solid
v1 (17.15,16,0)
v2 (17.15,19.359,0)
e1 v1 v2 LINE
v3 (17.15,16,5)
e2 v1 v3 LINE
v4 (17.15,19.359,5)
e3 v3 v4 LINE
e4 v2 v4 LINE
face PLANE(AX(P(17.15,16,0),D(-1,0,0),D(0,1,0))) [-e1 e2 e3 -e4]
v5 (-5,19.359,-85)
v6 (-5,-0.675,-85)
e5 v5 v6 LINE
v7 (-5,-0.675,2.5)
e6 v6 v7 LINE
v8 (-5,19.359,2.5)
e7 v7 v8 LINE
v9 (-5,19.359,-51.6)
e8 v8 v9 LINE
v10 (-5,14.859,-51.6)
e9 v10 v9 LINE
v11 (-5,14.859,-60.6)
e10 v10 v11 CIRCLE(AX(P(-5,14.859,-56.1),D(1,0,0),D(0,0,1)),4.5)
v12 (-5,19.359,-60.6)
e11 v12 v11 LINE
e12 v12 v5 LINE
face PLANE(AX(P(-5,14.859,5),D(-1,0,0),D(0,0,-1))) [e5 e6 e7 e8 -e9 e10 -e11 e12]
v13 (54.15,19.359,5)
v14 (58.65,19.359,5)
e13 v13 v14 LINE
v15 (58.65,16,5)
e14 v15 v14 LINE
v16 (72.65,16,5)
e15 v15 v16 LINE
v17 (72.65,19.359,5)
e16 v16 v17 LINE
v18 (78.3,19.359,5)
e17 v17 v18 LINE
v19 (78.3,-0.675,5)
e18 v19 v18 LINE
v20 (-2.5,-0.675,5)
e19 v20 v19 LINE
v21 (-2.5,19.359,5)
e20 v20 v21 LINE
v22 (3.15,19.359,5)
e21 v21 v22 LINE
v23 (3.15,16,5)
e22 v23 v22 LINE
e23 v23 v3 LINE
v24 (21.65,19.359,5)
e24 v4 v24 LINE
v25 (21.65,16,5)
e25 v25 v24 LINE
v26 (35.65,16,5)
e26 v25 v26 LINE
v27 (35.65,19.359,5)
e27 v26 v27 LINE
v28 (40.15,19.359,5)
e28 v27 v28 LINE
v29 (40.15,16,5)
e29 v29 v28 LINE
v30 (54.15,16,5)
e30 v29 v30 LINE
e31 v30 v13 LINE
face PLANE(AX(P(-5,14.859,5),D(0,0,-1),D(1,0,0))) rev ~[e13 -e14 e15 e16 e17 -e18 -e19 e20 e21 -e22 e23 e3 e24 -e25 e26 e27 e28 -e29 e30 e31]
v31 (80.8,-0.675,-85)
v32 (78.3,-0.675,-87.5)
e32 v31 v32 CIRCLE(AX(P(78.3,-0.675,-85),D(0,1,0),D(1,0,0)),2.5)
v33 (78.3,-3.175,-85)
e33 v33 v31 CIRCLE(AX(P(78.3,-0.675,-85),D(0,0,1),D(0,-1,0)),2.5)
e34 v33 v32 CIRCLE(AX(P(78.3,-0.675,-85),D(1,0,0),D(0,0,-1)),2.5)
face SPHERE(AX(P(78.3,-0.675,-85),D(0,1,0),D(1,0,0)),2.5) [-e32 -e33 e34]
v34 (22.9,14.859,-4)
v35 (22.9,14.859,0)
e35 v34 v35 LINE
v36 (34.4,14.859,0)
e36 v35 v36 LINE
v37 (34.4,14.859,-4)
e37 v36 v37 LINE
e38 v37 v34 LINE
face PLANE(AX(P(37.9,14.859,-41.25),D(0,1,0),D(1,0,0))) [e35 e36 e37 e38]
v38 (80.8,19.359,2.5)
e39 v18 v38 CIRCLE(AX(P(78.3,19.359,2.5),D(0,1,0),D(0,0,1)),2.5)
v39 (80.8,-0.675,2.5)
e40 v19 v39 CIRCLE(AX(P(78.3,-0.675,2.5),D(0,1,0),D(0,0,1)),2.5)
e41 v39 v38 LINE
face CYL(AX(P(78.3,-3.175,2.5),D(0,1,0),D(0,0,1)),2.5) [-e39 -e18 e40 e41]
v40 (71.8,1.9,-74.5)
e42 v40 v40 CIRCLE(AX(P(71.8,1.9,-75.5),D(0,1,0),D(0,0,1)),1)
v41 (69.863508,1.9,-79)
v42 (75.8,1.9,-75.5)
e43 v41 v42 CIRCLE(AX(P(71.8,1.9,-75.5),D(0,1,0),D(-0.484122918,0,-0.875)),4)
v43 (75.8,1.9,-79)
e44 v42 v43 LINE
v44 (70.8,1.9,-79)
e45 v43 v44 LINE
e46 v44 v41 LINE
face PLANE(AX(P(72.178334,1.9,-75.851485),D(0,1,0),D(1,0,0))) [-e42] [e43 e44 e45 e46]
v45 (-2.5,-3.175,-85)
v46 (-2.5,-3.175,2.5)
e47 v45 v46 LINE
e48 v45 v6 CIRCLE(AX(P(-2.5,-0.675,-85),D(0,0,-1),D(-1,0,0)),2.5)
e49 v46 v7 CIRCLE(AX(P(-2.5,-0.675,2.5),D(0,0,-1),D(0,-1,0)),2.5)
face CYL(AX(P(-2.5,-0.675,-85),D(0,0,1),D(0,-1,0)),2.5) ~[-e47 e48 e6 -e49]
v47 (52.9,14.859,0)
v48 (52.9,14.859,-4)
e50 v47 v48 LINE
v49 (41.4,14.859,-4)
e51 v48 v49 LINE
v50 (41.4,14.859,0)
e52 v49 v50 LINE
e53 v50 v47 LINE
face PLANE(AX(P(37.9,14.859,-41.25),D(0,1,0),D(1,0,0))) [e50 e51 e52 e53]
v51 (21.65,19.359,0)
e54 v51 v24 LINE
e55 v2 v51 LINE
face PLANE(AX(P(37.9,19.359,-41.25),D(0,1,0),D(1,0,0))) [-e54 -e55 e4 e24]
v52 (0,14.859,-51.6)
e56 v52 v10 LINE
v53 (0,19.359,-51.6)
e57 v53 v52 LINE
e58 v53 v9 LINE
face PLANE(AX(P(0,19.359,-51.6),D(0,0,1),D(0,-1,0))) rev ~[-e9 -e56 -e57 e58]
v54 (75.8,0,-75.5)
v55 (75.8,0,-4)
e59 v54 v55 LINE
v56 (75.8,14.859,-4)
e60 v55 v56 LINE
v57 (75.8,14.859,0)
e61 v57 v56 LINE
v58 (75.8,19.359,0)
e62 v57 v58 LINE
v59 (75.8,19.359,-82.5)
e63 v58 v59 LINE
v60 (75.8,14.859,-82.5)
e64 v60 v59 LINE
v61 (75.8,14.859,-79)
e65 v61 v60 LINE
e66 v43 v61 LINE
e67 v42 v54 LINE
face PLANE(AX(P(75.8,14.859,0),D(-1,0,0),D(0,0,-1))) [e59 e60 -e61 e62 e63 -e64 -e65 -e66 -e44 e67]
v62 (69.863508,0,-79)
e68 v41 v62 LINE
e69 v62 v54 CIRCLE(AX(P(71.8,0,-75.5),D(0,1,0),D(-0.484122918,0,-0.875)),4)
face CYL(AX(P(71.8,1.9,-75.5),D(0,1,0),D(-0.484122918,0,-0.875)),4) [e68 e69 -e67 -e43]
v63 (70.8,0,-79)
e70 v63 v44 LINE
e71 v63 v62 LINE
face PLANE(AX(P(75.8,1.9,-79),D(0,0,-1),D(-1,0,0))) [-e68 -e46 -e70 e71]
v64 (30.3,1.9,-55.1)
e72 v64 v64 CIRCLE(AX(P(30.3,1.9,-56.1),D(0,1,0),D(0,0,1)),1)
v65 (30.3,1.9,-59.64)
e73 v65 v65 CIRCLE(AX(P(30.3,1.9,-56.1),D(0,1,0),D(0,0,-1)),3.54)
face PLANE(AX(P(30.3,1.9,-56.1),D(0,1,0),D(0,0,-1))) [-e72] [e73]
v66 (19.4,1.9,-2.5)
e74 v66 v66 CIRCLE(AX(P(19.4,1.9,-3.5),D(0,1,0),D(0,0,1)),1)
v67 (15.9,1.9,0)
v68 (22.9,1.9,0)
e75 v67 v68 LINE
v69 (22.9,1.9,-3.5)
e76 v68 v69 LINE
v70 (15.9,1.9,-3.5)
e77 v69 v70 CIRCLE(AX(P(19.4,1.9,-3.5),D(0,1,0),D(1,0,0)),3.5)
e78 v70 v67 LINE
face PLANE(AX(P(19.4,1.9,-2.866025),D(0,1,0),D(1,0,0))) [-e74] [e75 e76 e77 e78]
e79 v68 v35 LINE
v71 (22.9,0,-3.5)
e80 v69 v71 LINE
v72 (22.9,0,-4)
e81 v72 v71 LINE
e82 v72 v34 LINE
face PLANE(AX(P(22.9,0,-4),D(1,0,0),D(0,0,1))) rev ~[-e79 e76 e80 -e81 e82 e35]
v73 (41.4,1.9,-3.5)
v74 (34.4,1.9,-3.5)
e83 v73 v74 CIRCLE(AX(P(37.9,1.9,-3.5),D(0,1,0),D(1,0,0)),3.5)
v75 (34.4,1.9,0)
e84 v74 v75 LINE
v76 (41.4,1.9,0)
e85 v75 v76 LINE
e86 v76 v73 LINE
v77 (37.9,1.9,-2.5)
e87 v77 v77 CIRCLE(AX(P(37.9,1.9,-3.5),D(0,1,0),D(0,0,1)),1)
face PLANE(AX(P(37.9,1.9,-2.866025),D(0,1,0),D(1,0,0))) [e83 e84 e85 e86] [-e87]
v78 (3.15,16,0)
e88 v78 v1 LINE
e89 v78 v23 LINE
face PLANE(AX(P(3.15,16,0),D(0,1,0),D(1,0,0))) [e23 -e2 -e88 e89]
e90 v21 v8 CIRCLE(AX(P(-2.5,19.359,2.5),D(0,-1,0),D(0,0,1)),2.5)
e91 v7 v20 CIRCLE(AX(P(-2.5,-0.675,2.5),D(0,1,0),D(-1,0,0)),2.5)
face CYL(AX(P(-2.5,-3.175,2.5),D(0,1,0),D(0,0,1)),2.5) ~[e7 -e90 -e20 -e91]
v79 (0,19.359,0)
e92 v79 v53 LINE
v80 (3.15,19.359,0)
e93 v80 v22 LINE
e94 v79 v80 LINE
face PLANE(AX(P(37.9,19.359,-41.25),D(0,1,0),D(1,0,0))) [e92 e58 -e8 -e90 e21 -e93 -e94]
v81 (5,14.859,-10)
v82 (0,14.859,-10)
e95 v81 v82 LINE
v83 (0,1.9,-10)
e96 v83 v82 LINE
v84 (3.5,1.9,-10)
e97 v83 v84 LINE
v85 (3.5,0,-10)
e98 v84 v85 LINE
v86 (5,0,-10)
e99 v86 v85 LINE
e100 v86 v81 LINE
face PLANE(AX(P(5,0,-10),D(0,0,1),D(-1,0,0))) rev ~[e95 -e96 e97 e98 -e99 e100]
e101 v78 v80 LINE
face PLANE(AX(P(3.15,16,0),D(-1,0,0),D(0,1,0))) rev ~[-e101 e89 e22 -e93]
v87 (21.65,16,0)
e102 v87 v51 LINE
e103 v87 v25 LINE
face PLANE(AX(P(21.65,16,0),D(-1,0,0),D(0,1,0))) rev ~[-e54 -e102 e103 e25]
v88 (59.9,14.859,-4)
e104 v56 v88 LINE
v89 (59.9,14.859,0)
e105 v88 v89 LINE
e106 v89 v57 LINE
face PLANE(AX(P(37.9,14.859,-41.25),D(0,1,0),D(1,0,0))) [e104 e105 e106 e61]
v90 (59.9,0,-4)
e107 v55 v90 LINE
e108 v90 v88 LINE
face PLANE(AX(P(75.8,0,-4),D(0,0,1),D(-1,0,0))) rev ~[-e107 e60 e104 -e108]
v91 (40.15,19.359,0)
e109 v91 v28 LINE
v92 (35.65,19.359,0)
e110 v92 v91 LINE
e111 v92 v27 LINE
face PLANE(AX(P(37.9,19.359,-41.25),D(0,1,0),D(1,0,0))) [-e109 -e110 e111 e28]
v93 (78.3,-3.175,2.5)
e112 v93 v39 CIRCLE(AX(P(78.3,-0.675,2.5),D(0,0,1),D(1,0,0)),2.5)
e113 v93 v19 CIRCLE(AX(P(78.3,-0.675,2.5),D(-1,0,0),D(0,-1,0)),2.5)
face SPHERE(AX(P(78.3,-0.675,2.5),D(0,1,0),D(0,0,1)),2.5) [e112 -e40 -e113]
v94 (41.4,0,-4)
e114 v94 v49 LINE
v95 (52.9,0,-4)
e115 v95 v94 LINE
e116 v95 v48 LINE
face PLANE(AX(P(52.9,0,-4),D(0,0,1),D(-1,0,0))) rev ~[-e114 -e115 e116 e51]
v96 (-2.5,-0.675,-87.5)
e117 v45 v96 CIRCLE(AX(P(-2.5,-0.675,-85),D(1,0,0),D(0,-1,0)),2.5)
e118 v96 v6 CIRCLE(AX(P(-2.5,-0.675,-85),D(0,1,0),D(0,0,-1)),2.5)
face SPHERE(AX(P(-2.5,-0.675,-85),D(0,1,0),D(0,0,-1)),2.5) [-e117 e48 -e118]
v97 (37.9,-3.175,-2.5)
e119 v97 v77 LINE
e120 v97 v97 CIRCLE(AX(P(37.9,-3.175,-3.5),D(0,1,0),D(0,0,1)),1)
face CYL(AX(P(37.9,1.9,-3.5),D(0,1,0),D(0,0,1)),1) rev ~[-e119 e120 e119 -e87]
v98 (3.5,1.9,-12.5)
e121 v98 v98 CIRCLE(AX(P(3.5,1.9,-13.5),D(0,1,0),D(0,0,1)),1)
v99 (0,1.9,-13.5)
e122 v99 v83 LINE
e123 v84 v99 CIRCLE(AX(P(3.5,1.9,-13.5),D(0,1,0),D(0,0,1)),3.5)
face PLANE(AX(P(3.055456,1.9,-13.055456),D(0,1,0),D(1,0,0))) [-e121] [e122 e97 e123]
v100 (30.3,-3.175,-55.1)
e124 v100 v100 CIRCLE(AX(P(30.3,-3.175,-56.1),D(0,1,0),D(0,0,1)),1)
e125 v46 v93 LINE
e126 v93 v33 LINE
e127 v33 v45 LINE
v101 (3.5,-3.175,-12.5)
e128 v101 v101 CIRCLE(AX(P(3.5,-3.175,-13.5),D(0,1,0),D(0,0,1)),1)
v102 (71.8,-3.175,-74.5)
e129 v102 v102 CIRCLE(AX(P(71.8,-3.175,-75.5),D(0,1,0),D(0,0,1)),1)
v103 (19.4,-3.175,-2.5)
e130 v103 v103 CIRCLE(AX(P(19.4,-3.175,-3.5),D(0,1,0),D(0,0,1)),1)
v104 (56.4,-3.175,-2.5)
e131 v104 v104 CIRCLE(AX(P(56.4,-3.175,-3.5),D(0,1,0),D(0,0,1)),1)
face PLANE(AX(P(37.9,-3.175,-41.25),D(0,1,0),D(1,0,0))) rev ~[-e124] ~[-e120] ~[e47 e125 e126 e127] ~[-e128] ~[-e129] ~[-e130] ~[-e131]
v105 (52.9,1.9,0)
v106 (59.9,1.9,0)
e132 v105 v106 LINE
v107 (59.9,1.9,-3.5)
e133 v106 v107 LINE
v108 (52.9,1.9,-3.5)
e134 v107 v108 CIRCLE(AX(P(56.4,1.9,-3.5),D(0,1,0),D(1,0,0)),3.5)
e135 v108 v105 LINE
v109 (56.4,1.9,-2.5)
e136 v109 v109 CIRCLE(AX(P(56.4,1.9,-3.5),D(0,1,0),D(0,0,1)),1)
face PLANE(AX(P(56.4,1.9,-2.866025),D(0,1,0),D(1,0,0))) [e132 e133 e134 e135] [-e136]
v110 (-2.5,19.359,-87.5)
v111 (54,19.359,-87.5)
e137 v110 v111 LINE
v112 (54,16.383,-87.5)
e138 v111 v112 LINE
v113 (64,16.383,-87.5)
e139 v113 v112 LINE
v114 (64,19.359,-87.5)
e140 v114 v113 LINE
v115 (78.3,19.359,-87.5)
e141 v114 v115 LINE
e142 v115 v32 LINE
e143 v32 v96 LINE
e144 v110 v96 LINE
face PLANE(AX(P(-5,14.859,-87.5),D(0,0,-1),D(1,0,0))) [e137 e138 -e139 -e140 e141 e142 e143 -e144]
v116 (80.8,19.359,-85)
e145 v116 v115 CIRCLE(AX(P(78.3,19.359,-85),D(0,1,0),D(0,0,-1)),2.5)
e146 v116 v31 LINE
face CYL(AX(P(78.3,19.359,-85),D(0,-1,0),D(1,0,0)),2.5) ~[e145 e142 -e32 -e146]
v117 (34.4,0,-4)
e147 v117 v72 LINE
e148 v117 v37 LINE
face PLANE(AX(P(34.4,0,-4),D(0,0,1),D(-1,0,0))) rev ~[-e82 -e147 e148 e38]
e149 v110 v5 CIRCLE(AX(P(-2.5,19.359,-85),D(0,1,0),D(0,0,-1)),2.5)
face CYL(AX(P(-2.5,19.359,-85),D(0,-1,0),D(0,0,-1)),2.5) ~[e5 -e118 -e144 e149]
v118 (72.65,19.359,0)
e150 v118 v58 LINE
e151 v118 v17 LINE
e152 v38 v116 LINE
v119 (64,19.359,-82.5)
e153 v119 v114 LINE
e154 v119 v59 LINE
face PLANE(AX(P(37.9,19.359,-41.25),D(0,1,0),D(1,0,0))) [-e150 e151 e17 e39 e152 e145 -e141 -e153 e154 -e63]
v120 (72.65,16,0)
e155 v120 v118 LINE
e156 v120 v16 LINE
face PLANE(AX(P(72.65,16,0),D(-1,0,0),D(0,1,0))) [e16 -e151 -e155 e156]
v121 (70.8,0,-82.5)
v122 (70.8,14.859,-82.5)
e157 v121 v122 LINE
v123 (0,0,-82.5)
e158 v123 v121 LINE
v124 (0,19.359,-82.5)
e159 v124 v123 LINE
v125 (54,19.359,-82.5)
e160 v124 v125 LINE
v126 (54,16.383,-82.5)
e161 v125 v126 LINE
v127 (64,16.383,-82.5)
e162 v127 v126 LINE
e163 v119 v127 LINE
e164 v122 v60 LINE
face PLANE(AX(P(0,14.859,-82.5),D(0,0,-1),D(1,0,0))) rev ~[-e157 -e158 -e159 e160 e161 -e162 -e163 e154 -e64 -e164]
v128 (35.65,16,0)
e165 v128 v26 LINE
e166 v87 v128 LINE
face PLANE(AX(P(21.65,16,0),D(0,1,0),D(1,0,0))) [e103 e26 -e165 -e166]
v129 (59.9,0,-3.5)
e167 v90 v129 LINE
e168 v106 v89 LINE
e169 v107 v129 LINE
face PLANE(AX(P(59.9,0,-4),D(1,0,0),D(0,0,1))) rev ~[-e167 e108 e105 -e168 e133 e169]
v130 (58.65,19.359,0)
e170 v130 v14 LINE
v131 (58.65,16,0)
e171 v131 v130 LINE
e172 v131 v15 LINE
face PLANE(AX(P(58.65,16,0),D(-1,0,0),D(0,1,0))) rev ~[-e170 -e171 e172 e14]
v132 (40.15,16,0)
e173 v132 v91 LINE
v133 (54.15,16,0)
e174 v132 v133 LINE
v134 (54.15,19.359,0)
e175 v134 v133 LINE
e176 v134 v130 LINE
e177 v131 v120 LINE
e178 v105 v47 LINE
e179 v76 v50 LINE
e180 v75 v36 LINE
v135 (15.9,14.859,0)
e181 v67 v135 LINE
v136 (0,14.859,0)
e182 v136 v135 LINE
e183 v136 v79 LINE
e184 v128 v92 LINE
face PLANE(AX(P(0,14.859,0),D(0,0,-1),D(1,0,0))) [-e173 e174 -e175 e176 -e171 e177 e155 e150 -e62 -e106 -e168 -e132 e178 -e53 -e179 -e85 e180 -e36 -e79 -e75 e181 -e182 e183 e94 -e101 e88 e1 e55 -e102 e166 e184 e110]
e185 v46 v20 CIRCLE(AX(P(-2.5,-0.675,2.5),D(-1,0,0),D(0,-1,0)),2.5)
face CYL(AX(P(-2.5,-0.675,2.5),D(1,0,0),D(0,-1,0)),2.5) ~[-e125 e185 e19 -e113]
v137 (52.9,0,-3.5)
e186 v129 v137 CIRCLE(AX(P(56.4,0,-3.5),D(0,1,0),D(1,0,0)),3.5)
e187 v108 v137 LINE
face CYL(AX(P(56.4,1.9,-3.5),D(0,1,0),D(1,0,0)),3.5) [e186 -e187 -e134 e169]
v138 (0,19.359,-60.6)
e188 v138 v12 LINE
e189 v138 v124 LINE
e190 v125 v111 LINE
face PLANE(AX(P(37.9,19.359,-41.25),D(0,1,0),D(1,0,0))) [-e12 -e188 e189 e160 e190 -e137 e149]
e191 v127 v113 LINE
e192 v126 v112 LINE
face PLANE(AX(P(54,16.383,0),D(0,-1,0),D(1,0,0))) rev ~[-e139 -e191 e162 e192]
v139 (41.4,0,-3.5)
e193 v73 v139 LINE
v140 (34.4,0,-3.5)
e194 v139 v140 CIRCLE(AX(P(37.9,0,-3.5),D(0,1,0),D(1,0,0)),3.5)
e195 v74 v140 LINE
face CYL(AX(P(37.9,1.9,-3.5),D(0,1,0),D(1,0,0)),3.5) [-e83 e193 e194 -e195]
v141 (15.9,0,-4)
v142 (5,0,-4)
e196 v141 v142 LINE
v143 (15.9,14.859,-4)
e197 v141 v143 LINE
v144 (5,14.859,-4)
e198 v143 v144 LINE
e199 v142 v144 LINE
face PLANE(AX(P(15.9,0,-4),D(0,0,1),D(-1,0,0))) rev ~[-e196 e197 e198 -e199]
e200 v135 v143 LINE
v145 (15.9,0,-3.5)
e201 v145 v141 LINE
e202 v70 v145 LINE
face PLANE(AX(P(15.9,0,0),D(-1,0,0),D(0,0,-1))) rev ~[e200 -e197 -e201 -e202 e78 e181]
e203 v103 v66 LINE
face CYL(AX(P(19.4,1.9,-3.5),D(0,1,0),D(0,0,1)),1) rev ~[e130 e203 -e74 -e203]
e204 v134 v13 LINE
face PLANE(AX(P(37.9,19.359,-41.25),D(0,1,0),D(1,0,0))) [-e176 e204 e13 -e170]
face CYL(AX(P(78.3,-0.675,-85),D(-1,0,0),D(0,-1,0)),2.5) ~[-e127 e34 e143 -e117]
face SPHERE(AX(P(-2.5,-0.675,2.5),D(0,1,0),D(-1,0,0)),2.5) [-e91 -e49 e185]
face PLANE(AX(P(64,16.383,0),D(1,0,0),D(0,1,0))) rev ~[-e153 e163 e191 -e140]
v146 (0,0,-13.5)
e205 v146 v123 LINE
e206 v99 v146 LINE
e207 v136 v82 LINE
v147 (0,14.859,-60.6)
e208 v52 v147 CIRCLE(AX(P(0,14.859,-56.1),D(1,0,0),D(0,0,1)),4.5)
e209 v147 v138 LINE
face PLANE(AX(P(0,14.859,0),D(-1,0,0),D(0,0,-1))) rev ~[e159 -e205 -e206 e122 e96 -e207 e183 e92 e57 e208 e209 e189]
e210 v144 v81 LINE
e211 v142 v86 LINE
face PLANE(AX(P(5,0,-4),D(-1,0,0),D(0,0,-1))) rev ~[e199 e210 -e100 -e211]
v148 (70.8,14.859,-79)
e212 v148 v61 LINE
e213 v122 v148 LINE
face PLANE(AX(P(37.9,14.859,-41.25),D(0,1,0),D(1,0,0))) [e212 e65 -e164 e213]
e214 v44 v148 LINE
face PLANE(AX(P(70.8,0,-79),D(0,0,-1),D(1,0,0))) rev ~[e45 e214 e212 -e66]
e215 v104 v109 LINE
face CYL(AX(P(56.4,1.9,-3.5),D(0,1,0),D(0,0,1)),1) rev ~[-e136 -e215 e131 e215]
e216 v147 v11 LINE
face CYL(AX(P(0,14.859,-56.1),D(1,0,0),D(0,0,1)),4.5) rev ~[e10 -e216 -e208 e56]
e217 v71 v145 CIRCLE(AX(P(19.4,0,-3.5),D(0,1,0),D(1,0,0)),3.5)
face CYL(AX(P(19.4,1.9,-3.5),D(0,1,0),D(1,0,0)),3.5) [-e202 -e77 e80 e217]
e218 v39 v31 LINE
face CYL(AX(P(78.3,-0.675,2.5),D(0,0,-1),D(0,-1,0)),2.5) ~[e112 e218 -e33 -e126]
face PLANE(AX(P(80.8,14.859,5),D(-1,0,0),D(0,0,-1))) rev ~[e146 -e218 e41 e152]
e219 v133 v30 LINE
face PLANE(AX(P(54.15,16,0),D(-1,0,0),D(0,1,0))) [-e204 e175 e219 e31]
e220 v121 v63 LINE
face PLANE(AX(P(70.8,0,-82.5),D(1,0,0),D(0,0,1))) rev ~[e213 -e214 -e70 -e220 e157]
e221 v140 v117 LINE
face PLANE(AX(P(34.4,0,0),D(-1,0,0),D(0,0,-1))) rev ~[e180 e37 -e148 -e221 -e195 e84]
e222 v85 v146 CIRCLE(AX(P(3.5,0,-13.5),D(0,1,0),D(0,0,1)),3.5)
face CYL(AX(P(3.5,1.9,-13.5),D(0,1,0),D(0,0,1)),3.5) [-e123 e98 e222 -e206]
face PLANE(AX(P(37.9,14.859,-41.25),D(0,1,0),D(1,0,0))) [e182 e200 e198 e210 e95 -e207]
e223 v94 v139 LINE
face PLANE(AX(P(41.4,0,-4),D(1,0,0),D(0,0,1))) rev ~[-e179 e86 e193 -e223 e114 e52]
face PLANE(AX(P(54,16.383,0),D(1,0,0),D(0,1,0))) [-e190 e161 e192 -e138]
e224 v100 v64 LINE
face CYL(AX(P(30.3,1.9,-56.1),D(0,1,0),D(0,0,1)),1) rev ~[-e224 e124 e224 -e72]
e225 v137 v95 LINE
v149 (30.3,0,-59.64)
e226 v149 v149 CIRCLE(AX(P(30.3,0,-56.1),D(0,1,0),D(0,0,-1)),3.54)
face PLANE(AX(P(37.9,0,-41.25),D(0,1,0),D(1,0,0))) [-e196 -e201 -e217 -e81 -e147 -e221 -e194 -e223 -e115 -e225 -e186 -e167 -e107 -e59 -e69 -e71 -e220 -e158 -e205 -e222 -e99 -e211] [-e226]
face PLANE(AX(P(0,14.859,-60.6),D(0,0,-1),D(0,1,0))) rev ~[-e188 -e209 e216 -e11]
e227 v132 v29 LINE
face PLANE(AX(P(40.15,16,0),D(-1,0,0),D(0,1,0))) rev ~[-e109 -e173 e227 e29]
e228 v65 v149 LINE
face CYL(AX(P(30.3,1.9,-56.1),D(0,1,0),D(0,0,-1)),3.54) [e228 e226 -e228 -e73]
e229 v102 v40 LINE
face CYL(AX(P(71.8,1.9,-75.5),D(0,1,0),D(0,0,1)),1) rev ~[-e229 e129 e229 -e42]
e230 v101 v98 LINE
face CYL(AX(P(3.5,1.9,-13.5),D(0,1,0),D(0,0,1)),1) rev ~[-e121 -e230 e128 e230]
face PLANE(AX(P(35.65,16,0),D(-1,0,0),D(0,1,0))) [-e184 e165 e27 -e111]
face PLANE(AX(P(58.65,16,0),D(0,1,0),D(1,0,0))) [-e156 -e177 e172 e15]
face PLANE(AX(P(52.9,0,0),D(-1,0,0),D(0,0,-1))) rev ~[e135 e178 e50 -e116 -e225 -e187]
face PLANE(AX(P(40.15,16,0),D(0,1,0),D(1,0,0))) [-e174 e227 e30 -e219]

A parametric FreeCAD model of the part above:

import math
import FreeCAD as App
import Part
import Sketcher
from FreeCAD import Vector
Q = App.Units.Quantity


def edges_at(feature, points):
    """Names of the edges that pass closest to the given points."""
    edges = feature.Shape.Edges
    near = lambda p: min(range(len(edges)), key=lambda i: edges[i].distToShape(Part.Vertex(*p))[0])
    return sorted({f"Edge{near(p) + 1}" for p in points})


def add_polygon(sketch, points):
    """Adds a closed chain of lines whose ends are joined by coincident constraints."""
    first, n = sketch.GeometryCount, len(points)
    for a, b in zip(points, points[1:] + points[:1]):
        sketch.addGeometry(Part.LineSegment(App.Vector(*a, 0), App.Vector(*b, 0)), False)
    for i in range(n):
        sketch.addConstraint(Sketcher.Constraint("Coincident", first + i, 2, first + (i + 1) % n, 1))

doc = App.newDocument("Part")
params = doc.addObject("Spreadsheet::Sheet", "Params")
for row, (alias, value) in enumerate([
    ("sketch1_width", "5 mm"),
    ("sketch1_width2", "7 mm"),
    ("sketch1_height", "6 mm"),
    ("sketch1_height2", "75 mm"),
    ("sketch1_height3", "4 mm"),
    ("pad1_length", "14.859 mm"),
    ("sketch2_diameter", "2 mm"),
    ("sketch2_width", "85.8 mm"),
    ("sketch2_height", "92.5 mm"),
    ("pad2_length", "3.175 mm"),
    ("sketch3_width", "85.8 mm"),
    ("sketch3_width2", "75.8 mm"),
    ("sketch3_height", "92.5 mm"),
    ("sketch3_height2", "82.5 mm"),
    ("pad3_length", "4.5 mm"),
    ("sketch4_radius", "4.5 mm"),
    ("sketch4_width", "4.5 mm"),
    ("sketch5_width", "14 mm"),
    ("sketch5_height", "8 mm"),
    ("sketch6_width", "10 mm"),
    ("sketch6_height", "6 mm"),
    ("sketch7_diameter", "2 mm"),
    ("sketch7_radius", "4 mm"),
    ("sketch7_radius2", "3.5 mm"),
    ("sketch7_diameter2", "7.08 mm"),
    ("pad4_length", "1.9 mm"),
    ("fillet_radius", "2.5 mm"),
    ("fillet2_radius", "2.5 mm"),
    ("fillet3_radius", "2.5 mm"),
    ("fillet4_radius", "2.5 mm"),
    ("fillet5_radius", "2.5 mm"),
], start=1):
    params.set(f"A{row}", alias)
    params.set(f"B{row}", "=" + value)
    params.setAlias(f"B{row}", alias)

body = doc.addObject("PartDesign::Body", "Body")

sketch1 = doc.addObject("Sketcher::SketchObject", "Sketch")
body.addObject(sketch1)
sketch1.AttachmentSupport = (doc.XZ_Plane, [""])
sketch1.MapMode = "FlatFace"
add_polygon(sketch1, [(-5, -87.5), (-5, 5), (80.8, 5), (80.8, -87.5)])
add_polygon(sketch1, [(15.9, -4), (5, -4), (5, -10), (0, -10), (0, -82.5), (70.8, -82.5), (70.8, -79), (75.8, -79), (75.8, -4), (59.9, -4), (59.9, 0), (52.9, 0), (52.9, -4), (41.4, -4), (41.4, 0), (34.4, 0), (34.4, -4), (22.9, -4), (22.9, 0), (15.9, 0)])
sketch1.addConstraint(Sketcher.Constraint("Vertical", 0))
sketch1.addConstraint(Sketcher.Constraint("Horizontal", 1))
sketch1.addConstraint(Sketcher.Constraint("Vertical", 2))
sketch1.addConstraint(Sketcher.Constraint("Horizontal", 3))
sketch1.addConstraint(Sketcher.Constraint("Horizontal", 4))
sketch1.addConstraint(Sketcher.Constraint("Vertical", 5))
sketch1.addConstraint(Sketcher.Constraint("Horizontal", 6))
sketch1.addConstraint(Sketcher.Constraint("Vertical", 7))
sketch1.addConstraint(Sketcher.Constraint("Horizontal", 8))
sketch1.addConstraint(Sketcher.Constraint("Vertical", 9))
sketch1.addConstraint(Sketcher.Constraint("Horizontal", 10))
sketch1.addConstraint(Sketcher.Constraint("Vertical", 11))
sketch1.addConstraint(Sketcher.Constraint("Horizontal", 12))
sketch1.addConstraint(Sketcher.Constraint("Vertical", 13))
sketch1.addConstraint(Sketcher.Constraint("Horizontal", 14))
sketch1.addConstraint(Sketcher.Constraint("Vertical", 15))
sketch1.addConstraint(Sketcher.Constraint("Horizontal", 16))
sketch1.addConstraint(Sketcher.Constraint("Vertical", 17))
sketch1.addConstraint(Sketcher.Constraint("Horizontal", 18))
sketch1.addConstraint(Sketcher.Constraint("Vertical", 19))
sketch1.addConstraint(Sketcher.Constraint("Horizontal", 20))
sketch1.addConstraint(Sketcher.Constraint("Vertical", 21))
sketch1.addConstraint(Sketcher.Constraint("Horizontal", 22))
sketch1.addConstraint(Sketcher.Constraint("Vertical", 23))
sketch1.addConstraint(Sketcher.Constraint("PointOnObject", 6, 2, -2))
sketch1.addConstraint(Sketcher.Constraint("PointOnObject", 13, 2, -1))
sketch1.addConstraint(Sketcher.Constraint("PointOnObject", 17, 2, -1))
sketch1.addConstraint(Sketcher.Constraint("PointOnObject", 21, 2, -1))
sketch1.addConstraint(Sketcher.Constraint("Horizontal", 4, 2, 11, 2))
sketch1.addConstraint(Sketcher.Constraint("Horizontal", 12, 2, 15, 2))
sketch1.addConstraint(Sketcher.Constraint("Horizontal", 16, 2, 19, 2))
sketch1.addConstraint(Sketcher.Constraint("Equal", 6, 10))
sketch1.addConstraint(Sketcher.Constraint("Equal", 14, 18))
sketch1.addConstraint(Sketcher.Constraint("Equal", 16, 20))
sketch1.addConstraint(Sketcher.Constraint("Equal", 18, 22))
sketch1.addConstraint(Sketcher.Constraint("DistanceX", 6, 2, 6, 1, Q("5 mm")))
sketch1.addConstraint(Sketcher.Constraint("DistanceX", 14, 2, 14, 1, Q("7 mm")))
sketch1.addConstraint(Sketcher.Constraint("DistanceY", 5, 2, 5, 1, Q("6 mm")))
sketch1.addConstraint(Sketcher.Constraint("DistanceY", 11, 1, 11, 2, Q("75 mm")))
sketch1.addConstraint(Sketcher.Constraint("DistanceY", 13, 1, 13, 2, Q("4 mm")))
sketch1.addConstraint(Sketcher.Constraint("DistanceX", 1, 1, 1, 2, Q("85.8 mm")))
sketch1.addConstraint(Sketcher.Constraint("DistanceX", 4, 2, 4, 1, Q("10.9 mm")))
sketch1.addConstraint(Sketcher.Constraint("DistanceX", 8, 1, 8, 2, Q("70.8 mm")))
sketch1.addConstraint(Sketcher.Constraint("DistanceX", 12, 2, 12, 1, Q("15.9 mm")))
sketch1.addConstraint(Sketcher.Constraint("DistanceY", 0, 1, 0, 2, Q("92.5 mm")))
sketch1.addConstraint(Sketcher.Constraint("DistanceY", 7, 2, 7, 1, Q("72.5 mm")))
sketch1.addConstraint(Sketcher.Constraint("DistanceX", 0, 2, -1, 1, Q("5 mm")))
sketch1.addConstraint(Sketcher.Constraint("DistanceY", -1, 1, 0, 2, Q("5 mm")))
sketch1.setExpression("Constraints[59]", "Params.sketch1_width")
sketch1.setExpression("Constraints[60]", "Params.sketch1_width2")
sketch1.setExpression("Constraints[61]", "Params.sketch1_height")
sketch1.setExpression("Constraints[62]", "Params.sketch1_height2")
sketch1.setExpression("Constraints[63]", "Params.sketch1_height3")
pad1 = doc.addObject("PartDesign::Pad", "Pad")
body.addObject(pad1)
pad1.Profile = sketch1
pad1.setExpression("Length", "Params.pad1_length")
pad1.Reversed = True

sketch2 = doc.addObject("Sketcher::SketchObject", "Sketch001")
body.addObject(sketch2)
sketch2.AttachmentSupport = (doc.XZ_Plane, [""])
sketch2.MapMode = "FlatFace"
add_polygon(sketch2, [(-5, -87.5), (-5, 5), (80.8, 5), (80.8, -87.5)])
sketch2.addGeometry(Part.Circle(Vector(19.4, -3.5, 0), Vector(0, 0, 1), 1), False)
sketch2.addGeometry(Part.Circle(Vector(3.5, -13.5, 0), Vector(0, 0, 1), 1), False)
sketch2.addGeometry(Part.Circle(Vector(37.9, -3.5, 0), Vector(0, 0, 1), 1), False)
sketch2.addGeometry(Part.Circle(Vector(56.4, -3.5, 0), Vector(0, 0, 1), 1), False)
sketch2.addGeometry(Part.Circle(Vector(30.3, -56.1, 0), Vector(0, 0, 1), 1), False)
sketch2.addGeometry(Part.Circle(Vector(71.8, -75.5, 0), Vector(0, 0, 1), 1), False)
sketch2.addConstraint(Sketcher.Constraint("Vertical", 0))
sketch2.addConstraint(Sketcher.Constraint("Horizontal", 1))
sketch2.addConstraint(Sketcher.Constraint("Vertical", 2))
sketch2.addConstraint(Sketcher.Constraint("Horizontal", 3))
sketch2.addConstraint(Sketcher.Constraint("Equal", 4, 5))
sketch2.addConstraint(Sketcher.Constraint("Equal", 5, 6))
sketch2.addConstraint(Sketcher.Constraint("Equal", 6, 7))
sketch2.addConstraint(Sketcher.Constraint("Equal", 7, 8))
sketch2.addConstraint(Sketcher.Constraint("Equal", 8, 9))
sketch2.addConstraint(Sketcher.Constraint("Horizontal", 4, 3, 6, 3))
sketch2.addConstraint(Sketcher.Constraint("Horizontal", 6, 3, 7, 3))
sketch2.addConstraint(Sketcher.Constraint("Diameter", 4, Q("2 mm")))
sketch2.addConstraint(Sketcher.Constraint("DistanceX", 1, 1, 1, 2, Q("85.8 mm")))
sketch2.addConstraint(Sketcher.Constraint("DistanceY", 0, 1, 0, 2, Q("92.5 mm")))
sketch2.addConstraint(Sketcher.Constraint("DistanceX", 0, 2, -1, 1, Q("5 mm")))
sketch2.addConstraint(Sketcher.Constraint("DistanceY", -1, 1, 0, 2, Q("5 mm")))
sketch2.addConstraint(Sketcher.Constraint("DistanceY", 5, 3, 4, 3, Q("10 mm")))
sketch2.addConstraint(Sketcher.Constraint("DistanceX", 4, 3, 7, 3, Q("37 mm")))
sketch2.addConstraint(Sketcher.Constraint("DistanceY", 9, 3, 7, 3, Q("72 mm")))
sketch2.addConstraint(Sketcher.Constraint("DistanceX", 9, 3, 2, 2, Q("9 mm")))
sketch2.addConstraint(Sketcher.Constraint("DistanceY", 2, 2, 9, 3, Q("12 mm")))
sketch2.addConstraint(Sketcher.Constraint("DistanceX", -1, 1, 4, 3, Q("19.4 mm")))
sketch2.addConstraint(Sketcher.Constraint("DistanceX", -1, 1, 5, 3, Q("3.5 mm")))
sketch2.addConstraint(Sketcher.Constraint("DistanceX", -1, 1, 6, 3, Q("37.9 mm")))
sketch2.addConstraint(Sketcher.Constraint("DistanceX", -1, 1, 8, 3, Q("30.3 mm")))
sketch2.addConstraint(Sketcher.Constraint("DistanceY", 8, 3, -1, 1, Q("56.1 mm")))
sketch2.setExpression("Constraints[15]", "Params.sketch2_diameter")
sketch2.setExpression("Constraints[16]", "Params.sketch2_width")
sketch2.setExpression("Constraints[17]", "Params.sketch2_height")
pad2 = doc.addObject("PartDesign::Pad", "Pad001")
body.addObject(pad2)
pad2.Profile = sketch2
pad2.setExpression("Length", "Params.pad2_length")

sketch3 = doc.addObject("Sketcher::SketchObject", "Sketch002")
body.addObject(sketch3)
sketch3.AttachmentSupport = (doc.XZ_Plane, [""])
sketch3.MapMode = "FlatFace"
sketch3.AttachmentOffset = App.Placement(Vector(0, 0, -14.859), App.Rotation())
add_polygon(sketch3, [(-5, -87.5), (-5, 5), (80.8, 5), (80.8, -87.5)])
add_polygon(sketch3, [(75.8, 0), (0, 0), (0, -82.5), (75.8, -82.5)])
sketch3.addConstraint(Sketcher.Constraint("Vertical", 0))
sketch3.addConstraint(Sketcher.Constraint("Horizontal", 1))
sketch3.addConstraint(Sketcher.Constraint("Vertical", 2))
sketch3.addConstraint(Sketcher.Constraint("Horizontal", 3))
sketch3.addConstraint(Sketcher.Constraint("Horizontal", 4))
sketch3.addConstraint(Sketcher.Constraint("Vertical", 5))
sketch3.addConstraint(Sketcher.Constraint("Horizontal", 6))
sketch3.addConstraint(Sketcher.Constraint("Vertical", 7))
sketch3.addConstraint(Sketcher.Constraint("Coincident", 4, 2, -1, 1))
sketch3.addConstraint(Sketcher.Constraint("DistanceX", 1, 1, 1, 2, Q("85.8 mm")))
sketch3.addConstraint(Sketcher.Constraint("DistanceX", 4, 2, 4, 1, Q("75.8 mm")))
sketch3.addConstraint(Sketcher.Constraint("DistanceY", 0, 1, 0, 2, Q("92.5 mm")))
sketch3.addConstraint(Sketcher.Constraint("DistanceY", 5, 2, 5, 1, Q("82.5 mm")))
sketch3.addConstraint(Sketcher.Constraint("DistanceX", 0, 2, -1, 1, Q("5 mm")))
sketch3.addConstraint(Sketcher.Constraint("DistanceY", -1, 1, 0, 2, Q("5 mm")))
sketch3.setExpression("Constraints[17]", "Params.sketch3_width")
sketch3.setExpression("Constraints[18]", "Params.sketch3_width2")
sketch3.setExpression("Constraints[19]", "Params.sketch3_height")
sketch3.setExpression("Constraints[20]", "Params.sketch3_height2")
pad3 = doc.addObject("PartDesign::Pad", "Pad002")
body.addObject(pad3)
pad3.Profile = sketch3
pad3.setExpression("Length", "Params.pad3_length")
pad3.Reversed = True

sketch4 = doc.addObject("Sketcher::SketchObject", "Sketch003")
body.addObject(sketch4)
sketch4.AttachmentSupport = (doc.YZ_Plane, [""])
sketch4.MapMode = "FlatFace"
sketch4.addGeometry(Part.LineSegment(Vector(14.859, -60.6, 0), Vector(19.359, -60.6, 0)), False)
sketch4.addGeometry(Part.LineSegment(Vector(19.359, -60.6, 0), Vector(19.359, -51.6, 0)), False)
sketch4.addGeometry(Part.LineSegment(Vector(19.359, -51.6, 0), Vector(14.859, -51.6, 0)), False)
sketch4.addGeometry(Part.ArcOfCircle(Part.Circle(Vector(14.859, -56.1, 0), Vector(0, 0, 1), 4.5), math.radians(90), math.radians(270)), False)
sketch4.addConstraint(Sketcher.Constraint("Coincident", 0, 2, 1, 1))
sketch4.addConstraint(Sketcher.Constraint("Coincident", 1, 2, 2, 1))
sketch4.addConstraint(Sketcher.Constraint("Tangent", 2, 2, 3, 1))
sketch4.addConstraint(Sketcher.Constraint("Tangent", 3, 2, 0, 1))
sketch4.addConstraint(Sketcher.Constraint("Horizontal", 0))
sketch4.addConstraint(Sketcher.Constraint("Vertical", 1))
sketch4.addConstraint(Sketcher.Constraint("Horizontal", 2))
sketch4.addConstraint(Sketcher.Constraint("Radius", 3, Q("4.5 mm")))
sketch4.addConstraint(Sketcher.Constraint("DistanceX", 0, 1, 0, 2, Q("4.5 mm")))
sketch4.addConstraint(Sketcher.Constraint("DistanceY", 3, 3, -1, 1, Q("56.1 mm")))
sketch4.addConstraint(Sketcher.Constraint("DistanceX", -1, 1, 3, 3, Q("14.859 mm")))
sketch4.setExpression("Constraints[7]", "Params.sketch4_radius")
sketch4.setExpression("Constraints[8]", "Params.sketch4_width")
pocket1 = doc.addObject("PartDesign::Pocket", "Pocket")
body.addObject(pocket1)
pocket1.Profile = sketch4
pocket1.Type = "ThroughAll"

sketch5 = doc.addObject("Sketcher::SketchObject", "Sketch004")
body.addObject(sketch5)
sketch5.AttachmentSupport = (doc.XY_Plane, [""])
sketch5.MapMode = "FlatFace"
add_polygon(sketch5, [(3.15, 24), (3.15, 16), (17.15, 16), (17.15, 24)])
add_polygon(sketch5, [(21.65, 24), (21.65, 16), (35.65, 16), (35.65, 24)])
add_polygon(sketch5, [(40.15, 24), (40.15, 16), (54.15, 16), (54.15, 24)])
add_polygon(sketch5, [(58.65, 24), (58.65, 16), (72.65, 16), (72.65, 24)])
sketch5.addConstraint(Sketcher.Constraint("Vertical", 0))
sketch5.addConstraint(Sketcher.Constraint("Horizontal", 1))
sketch5.addConstraint(Sketcher.Constraint("Vertical", 2))
sketch5.addConstraint(Sketcher.Constraint("Horizontal", 3))
sketch5.addConstraint(Sketcher.Constraint("Vertical", 4))
sketch5.addConstraint(Sketcher.Constraint("Horizontal", 5))
sketch5.addConstraint(Sketcher.Constraint("Vertical", 6))
sketch5.addConstraint(Sketcher.Constraint("Horizontal", 7))
sketch5.addConstraint(Sketcher.Constraint("Vertical", 8))
sketch5.addConstraint(Sketcher.Constraint("Horizontal", 9))
sketch5.addConstraint(Sketcher.Constraint("Vertical", 10))
sketch5.addConstraint(Sketcher.Constraint("Horizontal", 11))
sketch5.addConstraint(Sketcher.Constraint("Vertical", 12))
sketch5.addConstraint(Sketcher.Constraint("Horizontal", 13))
sketch5.addConstraint(Sketcher.Constraint("Vertical", 14))
sketch5.addConstraint(Sketcher.Constraint("Horizontal", 15))
sketch5.addConstraint(Sketcher.Constraint("Horizontal", 1, 2, 4, 2))
sketch5.addConstraint(Sketcher.Constraint("Horizontal", 3, 2, 6, 2))
sketch5.addConstraint(Sketcher.Constraint("Horizontal", 5, 2, 8, 2))
sketch5.addConstraint(Sketcher.Constraint("Horizontal", 7, 2, 10, 2))
sketch5.addConstraint(Sketcher.Constraint("Horizontal", 9, 2, 12, 2))
sketch5.addConstraint(Sketcher.Constraint("Horizontal", 11, 2, 14, 2))
sketch5.addConstraint(Sketcher.Constraint("Equal", 3, 5))
sketch5.addConstraint(Sketcher.Constraint("Equal", 7, 9))
sketch5.addConstraint(Sketcher.Constraint("Equal", 11, 13))
sketch5.addConstraint(Sketcher.Constraint("DistanceX", 1, 1, 1, 2, Q("14 mm")))
sketch5.addConstraint(Sketcher.Constraint("DistanceY", 0, 2, 0, 1, Q("8 mm")))
sketch5.addConstraint(Sketcher.Constraint("DistanceY", -1, 1, 0, 2, Q("16 mm")))
sketch5.addConstraint(Sketcher.Constraint("DistanceX", 1, 2, 8, 2, Q("23 mm")))
sketch5.addConstraint(Sketcher.Constraint("DistanceX", 5, 2, 12, 2, Q("23 mm")))
sketch5.addConstraint(Sketcher.Constraint("DistanceX", 1, 2, 4, 2, Q("4.5 mm")))
sketch5.addConstraint(Sketcher.Constraint("DistanceX", -1, 1, 0, 2, Q("3.15 mm")))
sketch5.setExpression("Constraints[41]", "Params.sketch5_width")
sketch5.setExpression("Constraints[42]", "Params.sketch5_height")
pocket2 = doc.addObject("PartDesign::Pocket", "Pocket001")
body.addObject(pocket2)
pocket2.Profile = sketch5
pocket2.Type = "ThroughAll"
pocket2.Reversed = True

sketch6 = doc.addObject("Sketcher::SketchObject", "Sketch005")
body.addObject(sketch6)
sketch6.AttachmentSupport = (doc.XY_Plane, [""])
sketch6.MapMode = "FlatFace"
add_polygon(sketch6, [(54, 22.383), (54, 16.383), (64, 16.383), (64, 22.383)])
sketch6.addConstraint(Sketcher.Constraint("Vertical", 0))
sketch6.addConstraint(Sketcher.Constraint("Horizontal", 1))
sketch6.addConstraint(Sketcher.Constraint("Vertical", 2))
sketch6.addConstraint(Sketcher.Constraint("Horizontal", 3))
sketch6.addConstraint(Sketcher.Constraint("DistanceX", 1, 1, 1, 2, Q("10 mm")))
sketch6.addConstraint(Sketcher.Constraint("DistanceY", 0, 2, 0, 1, Q("6 mm")))
sketch6.addConstraint(Sketcher.Constraint("DistanceX", -1, 1, 0, 2, Q("54 mm")))
sketch6.addConstraint(Sketcher.Constraint("DistanceY", -1, 1, 0, 2, Q("16.383 mm")))
sketch6.setExpression("Constraints[8]", "Params.sketch6_width")
sketch6.setExpression("Constraints[9]", "Params.sketch6_height")
pocket3 = doc.addObject("PartDesign::Pocket", "Pocket002")
body.addObject(pocket3)
pocket3.Profile = sketch6
pocket3.Type = "ThroughAll"

sketch7 = doc.addObject("Sketcher::SketchObject", "Sketch006")
body.addObject(sketch7)
sketch7.AttachmentSupport = (doc.XZ_Plane, [""])
sketch7.MapMode = "FlatFace"
sketch7.AttachmentOffset = App.Placement(Vector(0, 0, -1.9), App.Rotation())
sketch7.addGeometry(Part.Circle(Vector(30.3, -56.1, 0), Vector(0, 0, 1), 3.54), False)
sketch7.addGeometry(Part.Circle(Vector(30.3, -56.1, 0), Vector(0, 0, 1), 1), False)
sketch7.addGeometry(Part.LineSegment(Vector(0, -13.5, 0), Vector(0, -10, 0)), False)
sketch7.addGeometry(Part.LineSegment(Vector(0, -10, 0), Vector(3.5, -10, 0)), False)
sketch7.addGeometry(Part.ArcOfCircle(Part.Circle(Vector(3.5, -13.5, 0), Vector(0, 0, 1), 3.5), math.radians(180), math.radians(450)), False)
sketch7.addGeometry(Part.Circle(Vector(3.5, -13.5, 0), Vector(0, 0, 1), 1), False)
sketch7.addGeometry(Part.LineSegment(Vector(15.9, -3.5, 0), Vector(15.9, 0, 0)), False)
sketch7.addGeometry(Part.LineSegment(Vector(15.9, 0, 0), Vector(22.9, 0, 0)), False)
sketch7.addGeometry(Part.LineSegment(Vector(22.9, 0, 0), Vector(22.9, -3.5, 0)), False)
sketch7.addGeometry(Part.ArcOfCircle(Part.Circle(Vector(19.4, -3.5, 0), Vector(0, 0, 1), 3.5), math.radians(180), math.radians(360)), False)
sketch7.addGeometry(Part.Circle(Vector(19.4, -3.5, 0), Vector(0, 0, 1), 1), False)
sketch7.addGeometry(Part.LineSegment(Vector(34.4, -3.5, 0), Vector(34.4, 0, 0)), False)
sketch7.addGeometry(Part.LineSegment(Vector(34.4, 0, 0), Vector(41.4, 0, 0)), False)
sketch7.addGeometry(Part.LineSegment(Vector(41.4, 0, 0), Vector(41.4, -3.5, 0)), False)
sketch7.addGeometry(Part.ArcOfCircle(Part.Circle(Vector(37.9, -3.5, 0), Vector(0, 0, 1), 3.5), math.radians(180), math.radians(360)), False)
sketch7.addGeometry(Part.Circle(Vector(37.9, -3.5, 0), Vector(0, 0, 1), 1), False)
sketch7.addGeometry(Part.LineSegment(Vector(52.9, -3.5, 0), Vector(52.9, 0, 0)), False)
sketch7.addGeometry(Part.LineSegment(Vector(52.9, 0, 0), Vector(59.9, 0, 0)), False)
sketch7.addGeometry(Part.LineSegment(Vector(59.9, 0, 0), Vector(59.9, -3.5, 0)), False)
sketch7.addGeometry(Part.ArcOfCircle(Part.Circle(Vector(56.4, -3.5, 0), Vector(0, 0, 1), 3.5), math.radians(180), math.radians(360)), False)
sketch7.addGeometry(Part.Circle(Vector(56.4, -3.5, 0), Vector(0, 0, 1), 1), False)
sketch7.addGeometry(Part.LineSegment(Vector(75.8, -79, 0), Vector(69.863508, -79, 0)), False)
sketch7.addGeometry(Part.ArcOfCircle(Part.Circle(Vector(71.8, -75.5, 0), Vector(0, 0, 1), 4), math.radians(0), math.radians(241.044976)), False)
sketch7.addGeometry(Part.LineSegment(Vector(75.8, -75.5, 0), Vector(75.8, -79, 0)), False)
sketch7.addGeometry(Part.Circle(Vector(71.8, -75.5, 0), Vector(0, 0, 1), 1), False)
sketch7.addConstraint(Sketcher.Constraint("Coincident", 2, 2, 3, 1))
sketch7.addConstraint(Sketcher.Constraint("Tangent", 3, 2, 4, 2))
sketch7.addConstraint(Sketcher.Constraint("Tangent", 4, 1, 2, 1))
sketch7.addConstraint(Sketcher.Constraint("Coincident", 6, 2, 7, 1))
sketch7.addConstraint(Sketcher.Constraint("Coincident", 7, 2, 8, 1))
sketch7.addConstraint(Sketcher.Constraint("Tangent", 8, 2, 9, 2))
sketch7.addConstraint(Sketcher.Constraint("Tangent", 9, 1, 6, 1))
sketch7.addConstraint(Sketcher.Constraint("Coincident", 11, 2, 12, 1))
sketch7.addConstraint(Sketcher.Constraint("Coincident", 12, 2, 13, 1))
sketch7.addConstraint(Sketcher.Constraint("Tangent", 13, 2, 14, 2))
sketch7.addConstraint(Sketcher.Constraint("Tangent", 14, 1, 11, 1))
sketch7.addConstraint(Sketcher.Constraint("Coincident", 16, 2, 17, 1))
sketch7.addConstraint(Sketcher.Constraint("Coincident", 17, 2, 18, 1))
sketch7.addConstraint(Sketcher.Constraint("Tangent", 18, 2, 19, 2))
sketch7.addConstraint(Sketcher.Constraint("Tangent", 19, 1, 16, 1))
sketch7.addConstraint(Sketcher.Constraint("Coincident", 21, 2, 22, 2))
sketch7.addConstraint(Sketcher.Constraint("Tangent", 22, 1, 23, 1))
sketch7.addConstraint(Sketcher.Constraint("Coincident", 23, 2, 21, 1))
sketch7.addConstraint(Sketcher.Constraint("Vertical", 2))
sketch7.addConstraint(Sketcher.Constraint("Horizontal", 3))
sketch7.addConstraint(Sketcher.Constraint("Vertical", 6))
sketch7.addConstraint(Sketcher.Constraint("Horizontal", 7))
sketch7.addConstraint(Sketcher.Constraint("Vertical", 8))
sketch7.addConstraint(Sketcher.Constraint("Vertical", 11))
sketch7.addConstraint(Sketcher.Constraint("Horizontal", 12))
sketch7.addConstraint(Sketcher.Constraint("Vertical", 13))
sketch7.addConstraint(Sketcher.Constraint("Vertical", 16))
sketch7.addConstraint(Sketcher.Constraint("Horizontal", 17))
sketch7.addConstraint(Sketcher.Constraint("Vertical", 18))
sketch7.addConstraint(Sketcher.Constraint("Horizontal", 21))
sketch7.addConstraint(Sketcher.Constraint("Vertical", 23))
sketch7.addConstraint(Sketcher.Constraint("Coincident", 1, 3, 0, 3))
sketch7.addConstraint(Sketcher.Constraint("Coincident", 5, 3, 4, 3))
sketch7.addConstraint(Sketcher.Constraint("Coincident", 10, 3, 9, 3))
sketch7.addConstraint(Sketcher.Constraint("Coincident", 15, 3, 14, 3))
sketch7.addConstraint(Sketcher.Constraint("Coincident", 20, 3, 19, 3))
sketch7.addConstraint(Sketcher.Constraint("Coincident", 24, 3, 22, 3))
sketch7.addConstraint(Sketcher.Constraint("Equal", 1, 5))
sketch7.addConstraint(Sketcher.Constraint("Equal", 4, 9))
sketch7.addConstraint(Sketcher.Constraint("Equal", 5, 10))
sketch7.addConstraint(Sketcher.Constraint("Equal", 9, 14))
sketch7.addConstraint(Sketcher.Constraint("Equal", 10, 15))
sketch7.addConstraint(Sketcher.Constraint("Equal", 14, 19))
sketch7.addConstraint(Sketcher.Constraint("Equal", 15, 20))
sketch7.addConstraint(Sketcher.Constraint("Equal", 20, 24))
sketch7.addConstraint(Sketcher.Constraint("PointOnObject", 2, 2, -2))
sketch7.addConstraint(Sketcher.Constraint("PointOnObject", 6, 2, -1))
sketch7.addConstraint(Sketcher.Constraint("PointOnObject", 11, 2, -1))
sketch7.addConstraint(Sketcher.Constraint("PointOnObject", 16, 2, -1))
sketch7.addConstraint(Sketcher.Constraint("Horizontal", 10, 3, 14, 3))
sketch7.addConstraint(Sketcher.Constraint("Horizontal", 15, 3, 19, 3))
sketch7.addConstraint(Sketcher.Constraint("Equal", 2, 6))
sketch7.addConstraint(Sketcher.Constraint("Equal", 18, 23))
sketch7.addConstraint(Sketcher.Constraint("Diameter", 1, Q("2 mm")))
sketch7.addConstraint(Sketcher.Constraint("Radius", 22, Q("4 mm")))
sketch7.addConstraint(Sketcher.Constraint("Radius", 4, Q("3.5 mm")))
sketch7.addConstraint(Sketcher.Constraint("Diameter", 0, Q("7.08 mm")))
sketch7.addConstraint(Sketcher.Constraint("DistanceY", 2, 2, -1, 1, Q("10 mm")))
sketch7.addConstraint(Sketcher.Constraint("DistanceY", 21, 2, -1, 1, Q("79 mm")))
sketch7.addConstraint(Sketcher.Constraint("DistanceX", 9, 3, 19, 3, Q("37 mm")))
sketch7.addConstraint(Sketcher.Constraint("DistanceX", 7, 2, 14, 3, Q("15 mm")))
sketch7.addConstraint(Sketcher.Constraint("DistanceX", -1, 1, 0, 3, Q("30.3 mm")))
sketch7.addConstraint(Sketcher.Constraint("DistanceY", 0, 3, -1, 1, Q("56.1 mm")))
sketch7.addConstraint(Sketcher.Constraint("DistanceX", -1, 1, 9, 3, Q("19.4 mm")))
sketch7.addConstraint(Sketcher.Constraint("DistanceX", -1, 1, 22, 3, Q("71.8 mm")))
sketch7.setExpression("Constraints[53]", "Params.sketch7_diameter")
sketch7.setExpression("Constraints[54]", "Params.sketch7_radius")
sketch7.setExpression("Constraints[55]", "Params.sketch7_radius2")
sketch7.setExpression("Constraints[56]", "Params.sketch7_diameter2")
pad4 = doc.addObject("PartDesign::Pad", "Pad003")
body.addObject(pad4)
pad4.Profile = sketch7
pad4.setExpression("Length", "Params.pad4_length")
doc.recompute()

fillet = doc.addObject("PartDesign::Fillet", "Fillet")
body.addObject(fillet)
fillet.Base = (pad4, edges_at(pad4, [(-5, 8.092, 5)]))
fillet.setExpression("Radius", "Params.fillet_radius")
doc.recompute()

fillet2 = doc.addObject("PartDesign::Fillet", "Fillet001")
body.addObject(fillet2)
fillet2.Base = (fillet, edges_at(fillet, [(80.8, 8.092, 5)]))
fillet2.setExpression("Radius", "Params.fillet2_radius")
doc.recompute()

fillet3 = doc.addObject("PartDesign::Fillet", "Fillet002")
body.addObject(fillet3)
fillet3.Base = (fillet2, edges_at(fillet2, [(80.8, 8.092, -87.5)]))
fillet3.setExpression("Radius", "Params.fillet3_radius")
doc.recompute()

fillet4 = doc.addObject("PartDesign::Fillet", "Fillet003")
body.addObject(fillet4)
fillet4.Base = (fillet3, edges_at(fillet3, [(-5, 8.092, -87.5)]))
fillet4.setExpression("Radius", "Params.fillet4_radius")
doc.recompute()

fillet5 = doc.addObject("PartDesign::Fillet", "Fillet004")
body.addObject(fillet5)
fillet5.Base = (fillet4, edges_at(fillet4, [
    (37.9, -3.175, 5),
    (-4.268, -3.175, 4.268),
    (80.8, -3.175, -41.25),
    (80.068, -3.175, 4.268),
    (37.9, -3.175, -87.5),
    (80.068, -3.175, -86.768),
    (-5, -3.175, -41.25),
    (-4.268, -3.175, -86.768),
]))
fillet5.setExpression("Radius", "Params.fillet5_radius")

doc.recompute()
